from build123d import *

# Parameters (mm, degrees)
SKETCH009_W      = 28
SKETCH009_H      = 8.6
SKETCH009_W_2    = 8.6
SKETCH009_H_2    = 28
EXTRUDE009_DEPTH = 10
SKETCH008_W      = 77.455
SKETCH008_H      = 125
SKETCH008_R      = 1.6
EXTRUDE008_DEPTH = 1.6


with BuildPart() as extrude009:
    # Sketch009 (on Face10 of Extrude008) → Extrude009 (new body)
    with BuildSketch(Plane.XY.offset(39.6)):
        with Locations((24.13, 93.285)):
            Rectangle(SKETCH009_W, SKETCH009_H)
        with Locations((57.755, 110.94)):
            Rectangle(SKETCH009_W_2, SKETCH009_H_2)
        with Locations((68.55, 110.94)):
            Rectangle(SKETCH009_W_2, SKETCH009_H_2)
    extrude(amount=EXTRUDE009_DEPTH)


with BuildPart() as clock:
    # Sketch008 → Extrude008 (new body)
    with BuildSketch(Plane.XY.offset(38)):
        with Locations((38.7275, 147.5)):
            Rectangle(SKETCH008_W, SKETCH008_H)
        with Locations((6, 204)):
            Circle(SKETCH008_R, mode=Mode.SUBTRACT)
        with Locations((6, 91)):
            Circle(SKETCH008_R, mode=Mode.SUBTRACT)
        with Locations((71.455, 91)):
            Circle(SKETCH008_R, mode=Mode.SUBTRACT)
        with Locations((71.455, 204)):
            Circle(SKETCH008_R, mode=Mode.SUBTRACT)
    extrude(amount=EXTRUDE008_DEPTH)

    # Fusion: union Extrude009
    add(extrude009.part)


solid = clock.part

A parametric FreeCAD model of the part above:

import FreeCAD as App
import Part
import Sketcher

doc = App.newDocument("Part")
body = doc.addObject("PartDesign::Body", "Body")
body.AllowCompound = True

# Sketch on XY plane
sketch1 = body.newObject("Sketcher::SketchObject", "Sketch")
sketch1.AttachmentSupport = (doc.getObject("XY_Plane"), [""])
sketch1.MapMode = "FlatFace"
sketch1.AttachmentOffset = App.Placement(App.Vector(0, 0, 39.6), App.Rotation())
sketch1.addGeometry(Part.LineSegment(App.Vector(10, 98, 0), App.Vector(10, 89, 0)), False)
sketch1.addGeometry(Part.LineSegment(App.Vector(10, 89, 0), App.Vector(38, 89, 0)), False)
sketch1.addGeometry(Part.LineSegment(App.Vector(38, 89, 0), App.Vector(38, 98, 0)), False)
sketch1.addGeometry(Part.LineSegment(App.Vector(38, 98, 0), App.Vector(10, 98, 0)), False)
sketch1.addGeometry(Part.LineSegment(App.Vector(53, 125, 0), App.Vector(53, 97, 0)), False)
sketch1.addGeometry(Part.LineSegment(App.Vector(53, 97, 0), App.Vector(62, 97, 0)), False)
sketch1.addGeometry(Part.LineSegment(App.Vector(62, 97, 0), App.Vector(62, 125, 0)), False)
sketch1.addGeometry(Part.LineSegment(App.Vector(62, 125, 0), App.Vector(53, 125, 0)), False)
sketch1.addGeometry(Part.LineSegment(App.Vector(64, 125, 0), App.Vector(64, 97, 0)), False)
sketch1.addGeometry(Part.LineSegment(App.Vector(64, 97, 0), App.Vector(73, 97, 0)), False)
sketch1.addGeometry(Part.LineSegment(App.Vector(73, 97, 0), App.Vector(73, 125, 0)), False)
sketch1.addGeometry(Part.LineSegment(App.Vector(73, 125, 0), App.Vector(64, 125, 0)), False)
sketch1.addConstraint(Sketcher.Constraint("Coincident", 0, 2, 1, 1))
sketch1.addConstraint(Sketcher.Constraint("Coincident", 1, 2, 2, 1))
sketch1.addConstraint(Sketcher.Constraint("Coincident", 2, 2, 3, 1))
sketch1.addConstraint(Sketcher.Constraint("Coincident", 3, 2, 0, 1))
sketch1.addConstraint(Sketcher.Constraint("Coincident", 4, 2, 5, 1))
sketch1.addConstraint(Sketcher.Constraint("Coincident", 5, 2, 6, 1))
sketch1.addConstraint(Sketcher.Constraint("Coincident", 6, 2, 7, 1))
sketch1.addConstraint(Sketcher.Constraint("Coincident", 7, 2, 4, 1))
sketch1.addConstraint(Sketcher.Constraint("Coincident", 8, 2, 9, 1))
sketch1.addConstraint(Sketcher.Constraint("Coincident", 9, 2, 10, 1))
sketch1.addConstraint(Sketcher.Constraint("Coincident", 10, 2, 11, 1))
sketch1.addConstraint(Sketcher.Constraint("Coincident", 11, 2, 8, 1))
sketch1.addConstraint(Sketcher.Constraint("Vertical", 0))
sketch1.addConstraint(Sketcher.Constraint("Horizontal", 1))
sketch1.addConstraint(Sketcher.Constraint("Vertical", 2))
sketch1.addConstraint(Sketcher.Constraint("Horizontal", 3))
sketch1.addConstraint(Sketcher.Constraint("Vertical", 4))
sketch1.addConstraint(Sketcher.Constraint("Horizontal", 5))
sketch1.addConstraint(Sketcher.Constraint("Vertical", 6))
sketch1.addConstraint(Sketcher.Constraint("Horizontal", 7))
sketch1.addConstraint(Sketcher.Constraint("Vertical", 8))
sketch1.addConstraint(Sketcher.Constraint("Horizontal", 9))
sketch1.addConstraint(Sketcher.Constraint("Vertical", 10))
sketch1.addConstraint(Sketcher.Constraint("Horizontal", 11))
sketch1.addConstraint(Sketcher.Constraint("Horizontal", 5, 2, 8, 2))
sketch1.addConstraint(Sketcher.Constraint("Horizontal", 7, 2, 10, 2))
sketch1.addConstraint(Sketcher.Constraint("Equal", 7, 9))
sketch1.addConstraint(Sketcher.Constraint("Equal", 11, 0))
sketch1.addConstraint(Sketcher.Constraint("Equal", 3, 4))
sketch1.addConstraint(Sketcher.Constraint("DistanceX", 1, 1, 1, 2, 28.0))
sketch1.addConstraint(Sketcher.Constraint("DistanceX", 5, 1, 5, 2, 8.6))
sketch1.addConstraint(Sketcher.Constraint("DistanceX", -1, 1, 0, 2, 10.13))
sketch1.addConstraint(Sketcher.Constraint("DistanceY", -1, 1, 4, 2, 96.94))
sketch1.addConstraint(Sketcher.Constraint("DistanceX", -1, 1, 8, 2, 64.25))
sketch1.addConstraint(Sketcher.Constraint("DistanceY", -1, 1, 0, 2, 88.985))
sketch1.addConstraint(Sketcher.Constraint("DistanceX", -1, 1, 4, 2, 53.455))
pad1 = body.newObject("PartDesign::Pad", "Pad")
pad1.Profile = sketch1
pad1.Length = 10
body2 = doc.addObject("PartDesign::Body", "Body001")

# Sketch on XY plane
sketch2 = body2.newObject("Sketcher::SketchObject", "Sketch001")
sketch2.AttachmentSupport = (doc.getObject("XY_Plane001"), [""])
sketch2.MapMode = "FlatFace"
sketch2.AttachmentOffset = App.Placement(App.Vector(0, 0, 38), App.Rotation())
sketch2.addGeometry(Part.LineSegment(App.Vector(0, 210, 0), App.Vector(0, 85, 0)), False)
sketch2.addGeometry(Part.LineSegment(App.Vector(0, 85, 0), App.Vector(77.5, 85, 0)), False)
sketch2.addGeometry(Part.LineSegment(App.Vector(77.5, 85, 0), App.Vector(77.5, 210, 0)), False)
sketch2.addGeometry(Part.LineSegment(App.Vector(77.5, 210, 0), App.Vector(0, 210, 0)), False)
sketch2.addGeometry(Part.Circle(App.Vector(6, 91, 0), App.Vector(0, 0, 1), 1.6), False)
sketch2.addGeometry(Part.Circle(App.Vector(71.5, 91, 0), App.Vector(0, 0, 1), 1.6), False)
sketch2.addGeometry(Part.Circle(App.Vector(6, 204, 0), App.Vector(0, 0, 1), 1.6), False)
sketch2.addGeometry(Part.Circle(App.Vector(71.5, 204, 0), App.Vector(0, 0, 1), 1.6), False)
sketch2.addConstraint(Sketcher.Constraint("Coincident", 0, 2, 1, 1))
sketch2.addConstraint(Sketcher.Constraint("Coincident", 1, 2, 2, 1))
sketch2.addConstraint(Sketcher.Constraint("Coincident", 2, 2, 3, 1))
sketch2.addConstraint(Sketcher.Constraint("Coincident", 3, 2, 0, 1))
sketch2.addConstraint(Sketcher.Constraint("Vertical", 0))
sketch2.addConstraint(Sketcher.Constraint("Horizontal", 1))
sketch2.addConstraint(Sketcher.Constraint("Vertical", 2))
sketch2.addConstraint(Sketcher.Constraint("Horizontal", 3))
sketch2.addConstraint(Sketcher.Constraint("Equal", 4, 5))
sketch2.addConstraint(Sketcher.Constraint("Equal", 5, 6))
sketch2.addConstraint(Sketcher.Constraint("Equal", 6, 7))
sketch2.addConstraint(Sketcher.Constraint("PointOnObject", 0, 2, -2))
sketch2.addConstraint(Sketcher.Constraint("Horizontal", 4, 3, 5, 3))
sketch2.addConstraint(Sketcher.Constraint("Horizontal", 6, 3, 7, 3))
sketch2.addConstraint(Sketcher.Constraint("Vertical", 4, 3, 6, 3))
sketch2.addConstraint(Sketcher.Constraint("Vertical", 5, 3, 7, 3))
sketch2.addConstraint(Sketcher.Constraint("Diameter", 4, 3.2))
sketch2.addConstraint(Sketcher.Constraint("DistanceY", 0, 2, 0, 1, 125.0))
sketch2.addConstraint(Sketcher.Constraint("DistanceX", -1, 1, 4, 3, 6.0))
sketch2.addConstraint(Sketcher.Constraint("DistanceY", -1, 1, 4, 3, 91.0))
sketch2.addConstraint(Sketcher.Constraint("DistanceY", -1, 1, 6, 3, 204.0))
sketch2.addConstraint(Sketcher.Constraint("DistanceY", -1, 1, 0, 2, 85.0))
sketch2.addConstraint(Sketcher.Constraint("DistanceX", 5, 3, 1, 2, 6.0))
sketch2.addConstraint(Sketcher.Constraint("DistanceX", 1, 1, 1, 2, 77.455))
pad2 = body2.newObject("PartDesign::Pad", "Pad001")
pad2.Profile = sketch2
pad2.Length = 1.6
doc.recompute()

boolean = body2.newObject("PartDesign::Boolean", "Boolean")
boolean.Type = "Fuse"
boolean.addObjects([body])

doc.recompute()
